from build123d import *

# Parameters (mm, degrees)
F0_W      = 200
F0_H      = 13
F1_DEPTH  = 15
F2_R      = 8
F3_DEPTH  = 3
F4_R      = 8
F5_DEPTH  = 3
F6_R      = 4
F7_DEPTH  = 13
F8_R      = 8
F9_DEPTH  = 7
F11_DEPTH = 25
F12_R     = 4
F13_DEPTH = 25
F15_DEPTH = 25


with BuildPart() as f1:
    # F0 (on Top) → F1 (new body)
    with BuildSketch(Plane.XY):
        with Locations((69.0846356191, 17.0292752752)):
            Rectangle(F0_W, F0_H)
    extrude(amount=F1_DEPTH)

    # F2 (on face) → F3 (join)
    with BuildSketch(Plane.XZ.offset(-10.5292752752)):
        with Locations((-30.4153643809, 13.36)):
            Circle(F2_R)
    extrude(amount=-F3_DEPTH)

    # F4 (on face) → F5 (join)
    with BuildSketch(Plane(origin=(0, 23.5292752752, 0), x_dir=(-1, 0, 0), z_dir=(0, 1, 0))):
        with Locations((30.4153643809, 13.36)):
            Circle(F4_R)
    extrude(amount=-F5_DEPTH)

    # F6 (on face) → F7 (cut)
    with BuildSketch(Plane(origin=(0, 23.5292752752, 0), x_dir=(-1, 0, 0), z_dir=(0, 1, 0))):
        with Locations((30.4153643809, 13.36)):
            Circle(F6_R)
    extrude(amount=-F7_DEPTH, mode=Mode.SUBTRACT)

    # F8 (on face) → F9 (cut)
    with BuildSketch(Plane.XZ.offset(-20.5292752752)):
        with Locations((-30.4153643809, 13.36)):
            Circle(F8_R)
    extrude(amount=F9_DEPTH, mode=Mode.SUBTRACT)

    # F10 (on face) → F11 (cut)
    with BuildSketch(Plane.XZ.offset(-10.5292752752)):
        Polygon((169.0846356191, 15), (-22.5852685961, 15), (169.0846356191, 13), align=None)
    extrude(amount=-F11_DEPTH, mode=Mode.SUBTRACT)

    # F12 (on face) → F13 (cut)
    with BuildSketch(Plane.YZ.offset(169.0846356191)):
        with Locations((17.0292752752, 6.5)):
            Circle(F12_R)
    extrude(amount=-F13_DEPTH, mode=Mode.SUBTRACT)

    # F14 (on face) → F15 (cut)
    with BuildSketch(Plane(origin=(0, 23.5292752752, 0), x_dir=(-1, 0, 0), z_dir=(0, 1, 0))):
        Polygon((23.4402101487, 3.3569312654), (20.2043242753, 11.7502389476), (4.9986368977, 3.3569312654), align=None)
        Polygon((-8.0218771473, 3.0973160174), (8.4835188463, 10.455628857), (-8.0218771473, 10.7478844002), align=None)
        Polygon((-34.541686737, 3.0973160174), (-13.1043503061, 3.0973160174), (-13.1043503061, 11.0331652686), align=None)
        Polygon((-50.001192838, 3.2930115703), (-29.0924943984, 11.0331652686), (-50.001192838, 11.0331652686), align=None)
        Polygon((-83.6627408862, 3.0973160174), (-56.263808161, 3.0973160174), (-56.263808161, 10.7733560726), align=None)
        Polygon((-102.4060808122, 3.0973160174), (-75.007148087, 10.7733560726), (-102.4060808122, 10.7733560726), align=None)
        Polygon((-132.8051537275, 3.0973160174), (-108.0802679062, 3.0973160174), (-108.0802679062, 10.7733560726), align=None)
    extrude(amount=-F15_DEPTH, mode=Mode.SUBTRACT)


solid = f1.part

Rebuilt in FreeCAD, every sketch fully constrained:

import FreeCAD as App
import Part
import Sketcher
from FreeCAD import Vector


def add_polygon(sketch, points):
    """Adds a closed chain of lines whose ends are joined by coincident constraints."""
    first, n = sketch.GeometryCount, len(points)
    for a, b in zip(points, points[1:] + points[:1]):
        sketch.addGeometry(Part.LineSegment(App.Vector(*a, 0), App.Vector(*b, 0)), False)
    for i in range(n):
        sketch.addConstraint(Sketcher.Constraint("Coincident", first + i, 2, first + (i + 1) % n, 1))

doc = App.newDocument("Part")
params = doc.addObject("Spreadsheet::Sheet", "Params")
for row, (alias, value) in enumerate([
    ("sketch1_width", "200 mm"),
    ("sketch1_height", "13 mm"),
    ("pad1_length", "15 mm"),
    ("sketch2_diameter", "16 mm"),
    ("pad2_length", "3 mm"),
    ("sketch3_diameter", "16 mm"),
    ("pad3_length", "3 mm"),
    ("sketch4_diameter", "8 mm"),
    ("pocket1_length", "13 mm"),
    ("sketch5_diameter", "16 mm"),
    ("pocket2_length", "7 mm"),
    ("sketch6_height", "2 mm"),
    ("pocket3_length", "25 mm"),
    ("sketch7_diameter", "8 mm"),
    ("pocket4_length", "25 mm"),
    ("pocket5_length", "25 mm"),
], start=1):
    params.set(f"A{row}", alias)
    params.set(f"B{row}", "=" + value)
    params.setAlias(f"B{row}", alias)

body = doc.addObject("PartDesign::Body", "Body")

sketch1 = body.newObject("Sketcher::SketchObject", "Sketch")
sketch1.AttachmentSupport = (doc.getObject("XY_Plane"), [""])
sketch1.MapMode = "FlatFace"
add_polygon(sketch1, [(-31, 24), (-31, 11), (169, 11), (169, 24)])
sketch1.addConstraint(Sketcher.Constraint("Vertical", 0))
sketch1.addConstraint(Sketcher.Constraint("Horizontal", 1))
sketch1.addConstraint(Sketcher.Constraint("Vertical", 2))
sketch1.addConstraint(Sketcher.Constraint("Horizontal", 3))
sketch1.addConstraint(Sketcher.Constraint("DistanceX", 1, 1, 1, 2, 200.0))
sketch1.addConstraint(Sketcher.Constraint("DistanceY", 0, 2, 0, 1, 13.0))
sketch1.addConstraint(Sketcher.Constraint("DistanceX", 0, 2, -1, 1, 30.915364))
sketch1.addConstraint(Sketcher.Constraint("DistanceY", -1, 1, 0, 2, 10.529275))
sketch1.setExpression("Constraints[8]", "Params.sketch1_width")
sketch1.setExpression("Constraints[9]", "Params.sketch1_height")
pad1 = body.newObject("PartDesign::Pad", "Pad")
pad1.Profile = sketch1
pad1.setExpression("Length", "Params.pad1_length")

sketch2 = body.newObject("Sketcher::SketchObject", "Sketch001")
sketch2.AttachmentSupport = (doc.getObject("XZ_Plane"), [""])
sketch2.MapMode = "FlatFace"
sketch2.AttachmentOffset = App.Placement(Vector(0, 0, -10.529275), App.Rotation())
sketch2.addGeometry(Part.Circle(Vector(-30, 13, 0), Vector(0, 0, 1), 8), False)
sketch2.addConstraint(Sketcher.Constraint("Diameter", 0, 16.0))
sketch2.addConstraint(Sketcher.Constraint("DistanceY", -1, 1, 0, 3, 13.36))
sketch2.addConstraint(Sketcher.Constraint("DistanceX", 0, 3, -1, 1, 30.415364))
sketch2.setExpression("Constraints[0]", "Params.sketch2_diameter")
pad2 = body.newObject("PartDesign::Pad", "Pad001")
pad2.Profile = sketch2
pad2.setExpression("Length", "Params.pad2_length")
pad2.Reversed = True

sketch3 = body.newObject("Sketcher::SketchObject", "Sketch002")
sketch3.AttachmentSupport = (doc.getObject("XZ_Plane"), [""])
sketch3.MapMode = "FlatFace"
sketch3.AttachmentOffset = App.Placement(Vector(0, 0, -23.529275), App.Rotation())
sketch3.addGeometry(Part.Circle(Vector(-30, 13, 0), Vector(0, 0, 1), 8), False)
sketch3.addConstraint(Sketcher.Constraint("Diameter", 0, 16.0))
sketch3.addConstraint(Sketcher.Constraint("DistanceY", -1, 1, 0, 3, 13.36))
sketch3.addConstraint(Sketcher.Constraint("DistanceX", 0, 3, -1, 1, 30.415364))
sketch3.setExpression("Constraints[0]", "Params.sketch3_diameter")
pad3 = body.newObject("PartDesign::Pad", "Pad002")
pad3.Profile = sketch3
pad3.setExpression("Length", "Params.pad3_length")

sketch4 = body.newObject("Sketcher::SketchObject", "Sketch003")
sketch4.AttachmentSupport = (doc.getObject("XZ_Plane"), [""])
sketch4.MapMode = "FlatFace"
sketch4.AttachmentOffset = App.Placement(Vector(0, 0, -23.529275), App.Rotation())
sketch4.addGeometry(Part.Circle(Vector(-30.4, 13.4, 0), Vector(0, 0, 1), 4), False)
sketch4.addConstraint(Sketcher.Constraint("Diameter", 0, 8.0))
sketch4.addConstraint(Sketcher.Constraint("DistanceY", -1, 1, 0, 3, 13.36))
sketch4.addConstraint(Sketcher.Constraint("DistanceX", 0, 3, -1, 1, 30.415364))
sketch4.setExpression("Constraints[0]", "Params.sketch4_diameter")
pocket1 = body.newObject("PartDesign::Pocket", "Pocket")
pocket1.Profile = sketch4
pocket1.setExpression("Length", "Params.pocket1_length")
pocket1.Reversed = True

sketch5 = body.newObject("Sketcher::SketchObject", "Sketch004")
sketch5.AttachmentSupport = (doc.getObject("XZ_Plane"), [""])
sketch5.MapMode = "FlatFace"
sketch5.AttachmentOffset = App.Placement(Vector(0, 0, -20.529275), App.Rotation())
sketch5.addGeometry(Part.Circle(Vector(-30, 13, 0), Vector(0, 0, 1), 8), False)
sketch5.addConstraint(Sketcher.Constraint("Diameter", 0, 16.0))
sketch5.addConstraint(Sketcher.Constraint("DistanceY", -1, 1, 0, 3, 13.36))
sketch5.addConstraint(Sketcher.Constraint("DistanceX", 0, 3, -1, 1, 30.415364))
sketch5.setExpression("Constraints[0]", "Params.sketch5_diameter")
pocket2 = body.newObject("PartDesign::Pocket", "Pocket001")
pocket2.Profile = sketch5
pocket2.setExpression("Length", "Params.pocket2_length")
pocket2.Reversed = True

sketch6 = body.newObject("Sketcher::SketchObject", "Sketch005")
sketch6.AttachmentSupport = (doc.getObject("XZ_Plane"), [""])
sketch6.MapMode = "FlatFace"
sketch6.AttachmentOffset = App.Placement(Vector(0, 0, -10.529275), App.Rotation())
add_polygon(sketch6, [(169.1, 15), (-22.6, 15), (169.1, 13)])
sketch6.addConstraint(Sketcher.Constraint("Horizontal", 0))
sketch6.addConstraint(Sketcher.Constraint("Vertical", 2))
sketch6.addConstraint(Sketcher.Constraint("DistanceY", 2, 1, 2, 2, 2.0))
sketch6.addConstraint(Sketcher.Constraint("DistanceY", -1, 1, 0, 2, 15.0))
sketch6.addConstraint(Sketcher.Constraint("Distance", 1, 191.680339))
sketch6.addConstraint(Sketcher.Constraint("DistanceX", 0, 2, -1, 1, 22.585269))
sketch6.setExpression("Constraints[5]", "Params.sketch6_height")
pocket3 = body.newObject("PartDesign::Pocket", "Pocket002")
pocket3.Profile = sketch6
pocket3.setExpression("Length", "Params.pocket3_length")

sketch7 = body.newObject("Sketcher::SketchObject", "Sketch006")
sketch7.AttachmentSupport = (doc.getObject("YZ_Plane"), [""])
sketch7.MapMode = "FlatFace"
sketch7.AttachmentOffset = App.Placement(Vector(0, 0, 169.084636), App.Rotation())
sketch7.addGeometry(Part.Circle(Vector(17, 6.5, 0), Vector(0, 0, 1), 4), False)
sketch7.addConstraint(Sketcher.Constraint("Diameter", 0, 8.0))
sketch7.addConstraint(Sketcher.Constraint("DistanceY", -1, 1, 0, 3, 6.5))
sketch7.addConstraint(Sketcher.Constraint("DistanceX", -1, 1, 0, 3, 17.029275))
sketch7.setExpression("Constraints[0]", "Params.sketch7_diameter")
pocket4 = body.newObject("PartDesign::Pocket", "Pocket003")
pocket4.Profile = sketch7
pocket4.setExpression("Length", "Params.pocket4_length")

sketch8 = body.newObject("Sketcher::SketchObject", "Sketch007")
sketch8.AttachmentSupport = (doc.getObject("XZ_Plane"), [""])
sketch8.MapMode = "FlatFace"
sketch8.AttachmentOffset = App.Placement(Vector(0, 0, -23.529275), App.Rotation())
add_polygon(sketch8, [(-23, 3), (-20, 12), (-5, 3)])
add_polygon(sketch8, [(8, 3), (-8, 10), (8, 11)])
add_polygon(sketch8, [(35, 3), (13, 3), (13, 11)])
add_polygon(sketch8, [(50, 3), (29, 11), (50, 11)])
add_polygon(sketch8, [(84, 3), (56, 3), (56, 11)])
add_polygon(sketch8, [(102, 3), (75, 11), (102, 11)])
add_polygon(sketch8, [(133, 3), (108, 3), (108, 11)])
sketch8.addConstraint(Sketcher.Constraint("Horizontal", 2))
sketch8.addConstraint(Sketcher.Constraint("Vertical", 5))
sketch8.addConstraint(Sketcher.Constraint("Horizontal", 6))
sketch8.addConstraint(Sketcher.Constraint("Vertical", 7))
sketch8.addConstraint(Sketcher.Constraint("Horizontal", 10))
sketch8.addConstraint(Sketcher.Constraint("Vertical", 11))
sketch8.addConstraint(Sketcher.Constraint("Horizontal", 12))
sketch8.addConstraint(Sketcher.Constraint("Vertical", 13))
sketch8.addConstraint(Sketcher.Constraint("Horizontal", 16))
sketch8.addConstraint(Sketcher.Constraint("Vertical", 17))
sketch8.addConstraint(Sketcher.Constraint("Horizontal", 18))
sketch8.addConstraint(Sketcher.Constraint("Vertical", 19))
sketch8.addConstraint(Sketcher.Constraint("Parallel", 8, 9))
sketch8.addConstraint(Sketcher.Constraint("Parallel", 14, 15))
sketch8.addConstraint(Sketcher.Constraint("Horizontal", 5, 2, 6, 2))
sketch8.addConstraint(Sketcher.Constraint("Horizontal", 7, 2, 9, 2))
sketch8.addConstraint(Sketcher.Constraint("Horizontal", 8, 2, 12, 2))
sketch8.addConstraint(Sketcher.Constraint("Horizontal", 13, 2, 15, 2))
sketch8.addConstraint(Sketcher.Constraint("Horizontal", 14, 2, 17, 2))
sketch8.addConstraint(Sketcher.Constraint("Horizontal", 17, 2, 18, 2))
sketch8.addConstraint(Sketcher.Constraint("Horizontal", 16, 2, 19, 2))
sketch8.addConstraint(Sketcher.Constraint("DistanceX", 10, 1, 10, 2, 20.908698))
sketch8.addConstraint(Sketcher.Constraint("DistanceY", 5, 2, 5, 1, 7.650568))
sketch8.addConstraint(Sketcher.Constraint("DistanceY", 7, 1, 7, 2, 7.935849))
sketch8.addConstraint(Sketcher.Constraint("DistanceY", 13, 1, 13, 2, 7.67604))
sketch8.addConstraint(Sketcher.Constraint("DistanceX", 0, 2, 4, 2, 28.226201))
sketch8.addConstraint(Sketcher.Constraint("Distance", 8, 22.85907))
sketch8.addConstraint(Sketcher.Constraint("DistanceX", 2, 2, 2, 1, 18.441573))
sketch8.addConstraint(Sketcher.Constraint("DistanceX", 12, 2, 12, 1, 27.398933))
sketch8.addConstraint(Sketcher.Constraint("DistanceX", 18, 2, 18, 1, 24.724886))
sketch8.addConstraint(Sketcher.Constraint("DistanceY", -1, 1, 0, 2, 11.750239))
sketch8.addConstraint(Sketcher.Constraint("DistanceY", -1, 1, 1, 2, 3.356931))
sketch8.addConstraint(Sketcher.Constraint("DistanceX", 2, 2, -1, 1, 23.44021))
sketch8.addConstraint(Sketcher.Constraint("DistanceX", 3, 2, -1, 1, 8.483519))
sketch8.addConstraint(Sketcher.Constraint("DistanceY", -1, 1, 3, 2, 10.455629))
sketch8.addConstraint(Sketcher.Constraint("DistanceX", -1, 1, 6, 2, 13.10435))
sketch8.addConstraint(Sketcher.Constraint("DistanceY", -1, 1, 11, 2, 3.293012))
sketch8.addConstraint(Sketcher.Constraint("DistanceX", -1, 1, 12, 2, 56.263808))
sketch8.addConstraint(Sketcher.Constraint("DistanceX", -1, 1, 15, 2, 75.007148))
sketch8.addConstraint(Sketcher.Constraint("DistanceX", 5, 2, 8, 2, 26.51981))
sketch8.addConstraint(Sketcher.Constraint("DistanceX", 11, 2, 14, 2, 33.661548))
sketch8.addConstraint(Sketcher.Constraint("DistanceX", 15, 2, 18, 2, 33.07312))
pocket5 = body.newObject("PartDesign::Pocket", "Pocket004")
pocket5.Profile = sketch8
pocket5.setExpression("Length", "Params.pocket5_length")
pocket5.Reversed = True

doc.recompute()
